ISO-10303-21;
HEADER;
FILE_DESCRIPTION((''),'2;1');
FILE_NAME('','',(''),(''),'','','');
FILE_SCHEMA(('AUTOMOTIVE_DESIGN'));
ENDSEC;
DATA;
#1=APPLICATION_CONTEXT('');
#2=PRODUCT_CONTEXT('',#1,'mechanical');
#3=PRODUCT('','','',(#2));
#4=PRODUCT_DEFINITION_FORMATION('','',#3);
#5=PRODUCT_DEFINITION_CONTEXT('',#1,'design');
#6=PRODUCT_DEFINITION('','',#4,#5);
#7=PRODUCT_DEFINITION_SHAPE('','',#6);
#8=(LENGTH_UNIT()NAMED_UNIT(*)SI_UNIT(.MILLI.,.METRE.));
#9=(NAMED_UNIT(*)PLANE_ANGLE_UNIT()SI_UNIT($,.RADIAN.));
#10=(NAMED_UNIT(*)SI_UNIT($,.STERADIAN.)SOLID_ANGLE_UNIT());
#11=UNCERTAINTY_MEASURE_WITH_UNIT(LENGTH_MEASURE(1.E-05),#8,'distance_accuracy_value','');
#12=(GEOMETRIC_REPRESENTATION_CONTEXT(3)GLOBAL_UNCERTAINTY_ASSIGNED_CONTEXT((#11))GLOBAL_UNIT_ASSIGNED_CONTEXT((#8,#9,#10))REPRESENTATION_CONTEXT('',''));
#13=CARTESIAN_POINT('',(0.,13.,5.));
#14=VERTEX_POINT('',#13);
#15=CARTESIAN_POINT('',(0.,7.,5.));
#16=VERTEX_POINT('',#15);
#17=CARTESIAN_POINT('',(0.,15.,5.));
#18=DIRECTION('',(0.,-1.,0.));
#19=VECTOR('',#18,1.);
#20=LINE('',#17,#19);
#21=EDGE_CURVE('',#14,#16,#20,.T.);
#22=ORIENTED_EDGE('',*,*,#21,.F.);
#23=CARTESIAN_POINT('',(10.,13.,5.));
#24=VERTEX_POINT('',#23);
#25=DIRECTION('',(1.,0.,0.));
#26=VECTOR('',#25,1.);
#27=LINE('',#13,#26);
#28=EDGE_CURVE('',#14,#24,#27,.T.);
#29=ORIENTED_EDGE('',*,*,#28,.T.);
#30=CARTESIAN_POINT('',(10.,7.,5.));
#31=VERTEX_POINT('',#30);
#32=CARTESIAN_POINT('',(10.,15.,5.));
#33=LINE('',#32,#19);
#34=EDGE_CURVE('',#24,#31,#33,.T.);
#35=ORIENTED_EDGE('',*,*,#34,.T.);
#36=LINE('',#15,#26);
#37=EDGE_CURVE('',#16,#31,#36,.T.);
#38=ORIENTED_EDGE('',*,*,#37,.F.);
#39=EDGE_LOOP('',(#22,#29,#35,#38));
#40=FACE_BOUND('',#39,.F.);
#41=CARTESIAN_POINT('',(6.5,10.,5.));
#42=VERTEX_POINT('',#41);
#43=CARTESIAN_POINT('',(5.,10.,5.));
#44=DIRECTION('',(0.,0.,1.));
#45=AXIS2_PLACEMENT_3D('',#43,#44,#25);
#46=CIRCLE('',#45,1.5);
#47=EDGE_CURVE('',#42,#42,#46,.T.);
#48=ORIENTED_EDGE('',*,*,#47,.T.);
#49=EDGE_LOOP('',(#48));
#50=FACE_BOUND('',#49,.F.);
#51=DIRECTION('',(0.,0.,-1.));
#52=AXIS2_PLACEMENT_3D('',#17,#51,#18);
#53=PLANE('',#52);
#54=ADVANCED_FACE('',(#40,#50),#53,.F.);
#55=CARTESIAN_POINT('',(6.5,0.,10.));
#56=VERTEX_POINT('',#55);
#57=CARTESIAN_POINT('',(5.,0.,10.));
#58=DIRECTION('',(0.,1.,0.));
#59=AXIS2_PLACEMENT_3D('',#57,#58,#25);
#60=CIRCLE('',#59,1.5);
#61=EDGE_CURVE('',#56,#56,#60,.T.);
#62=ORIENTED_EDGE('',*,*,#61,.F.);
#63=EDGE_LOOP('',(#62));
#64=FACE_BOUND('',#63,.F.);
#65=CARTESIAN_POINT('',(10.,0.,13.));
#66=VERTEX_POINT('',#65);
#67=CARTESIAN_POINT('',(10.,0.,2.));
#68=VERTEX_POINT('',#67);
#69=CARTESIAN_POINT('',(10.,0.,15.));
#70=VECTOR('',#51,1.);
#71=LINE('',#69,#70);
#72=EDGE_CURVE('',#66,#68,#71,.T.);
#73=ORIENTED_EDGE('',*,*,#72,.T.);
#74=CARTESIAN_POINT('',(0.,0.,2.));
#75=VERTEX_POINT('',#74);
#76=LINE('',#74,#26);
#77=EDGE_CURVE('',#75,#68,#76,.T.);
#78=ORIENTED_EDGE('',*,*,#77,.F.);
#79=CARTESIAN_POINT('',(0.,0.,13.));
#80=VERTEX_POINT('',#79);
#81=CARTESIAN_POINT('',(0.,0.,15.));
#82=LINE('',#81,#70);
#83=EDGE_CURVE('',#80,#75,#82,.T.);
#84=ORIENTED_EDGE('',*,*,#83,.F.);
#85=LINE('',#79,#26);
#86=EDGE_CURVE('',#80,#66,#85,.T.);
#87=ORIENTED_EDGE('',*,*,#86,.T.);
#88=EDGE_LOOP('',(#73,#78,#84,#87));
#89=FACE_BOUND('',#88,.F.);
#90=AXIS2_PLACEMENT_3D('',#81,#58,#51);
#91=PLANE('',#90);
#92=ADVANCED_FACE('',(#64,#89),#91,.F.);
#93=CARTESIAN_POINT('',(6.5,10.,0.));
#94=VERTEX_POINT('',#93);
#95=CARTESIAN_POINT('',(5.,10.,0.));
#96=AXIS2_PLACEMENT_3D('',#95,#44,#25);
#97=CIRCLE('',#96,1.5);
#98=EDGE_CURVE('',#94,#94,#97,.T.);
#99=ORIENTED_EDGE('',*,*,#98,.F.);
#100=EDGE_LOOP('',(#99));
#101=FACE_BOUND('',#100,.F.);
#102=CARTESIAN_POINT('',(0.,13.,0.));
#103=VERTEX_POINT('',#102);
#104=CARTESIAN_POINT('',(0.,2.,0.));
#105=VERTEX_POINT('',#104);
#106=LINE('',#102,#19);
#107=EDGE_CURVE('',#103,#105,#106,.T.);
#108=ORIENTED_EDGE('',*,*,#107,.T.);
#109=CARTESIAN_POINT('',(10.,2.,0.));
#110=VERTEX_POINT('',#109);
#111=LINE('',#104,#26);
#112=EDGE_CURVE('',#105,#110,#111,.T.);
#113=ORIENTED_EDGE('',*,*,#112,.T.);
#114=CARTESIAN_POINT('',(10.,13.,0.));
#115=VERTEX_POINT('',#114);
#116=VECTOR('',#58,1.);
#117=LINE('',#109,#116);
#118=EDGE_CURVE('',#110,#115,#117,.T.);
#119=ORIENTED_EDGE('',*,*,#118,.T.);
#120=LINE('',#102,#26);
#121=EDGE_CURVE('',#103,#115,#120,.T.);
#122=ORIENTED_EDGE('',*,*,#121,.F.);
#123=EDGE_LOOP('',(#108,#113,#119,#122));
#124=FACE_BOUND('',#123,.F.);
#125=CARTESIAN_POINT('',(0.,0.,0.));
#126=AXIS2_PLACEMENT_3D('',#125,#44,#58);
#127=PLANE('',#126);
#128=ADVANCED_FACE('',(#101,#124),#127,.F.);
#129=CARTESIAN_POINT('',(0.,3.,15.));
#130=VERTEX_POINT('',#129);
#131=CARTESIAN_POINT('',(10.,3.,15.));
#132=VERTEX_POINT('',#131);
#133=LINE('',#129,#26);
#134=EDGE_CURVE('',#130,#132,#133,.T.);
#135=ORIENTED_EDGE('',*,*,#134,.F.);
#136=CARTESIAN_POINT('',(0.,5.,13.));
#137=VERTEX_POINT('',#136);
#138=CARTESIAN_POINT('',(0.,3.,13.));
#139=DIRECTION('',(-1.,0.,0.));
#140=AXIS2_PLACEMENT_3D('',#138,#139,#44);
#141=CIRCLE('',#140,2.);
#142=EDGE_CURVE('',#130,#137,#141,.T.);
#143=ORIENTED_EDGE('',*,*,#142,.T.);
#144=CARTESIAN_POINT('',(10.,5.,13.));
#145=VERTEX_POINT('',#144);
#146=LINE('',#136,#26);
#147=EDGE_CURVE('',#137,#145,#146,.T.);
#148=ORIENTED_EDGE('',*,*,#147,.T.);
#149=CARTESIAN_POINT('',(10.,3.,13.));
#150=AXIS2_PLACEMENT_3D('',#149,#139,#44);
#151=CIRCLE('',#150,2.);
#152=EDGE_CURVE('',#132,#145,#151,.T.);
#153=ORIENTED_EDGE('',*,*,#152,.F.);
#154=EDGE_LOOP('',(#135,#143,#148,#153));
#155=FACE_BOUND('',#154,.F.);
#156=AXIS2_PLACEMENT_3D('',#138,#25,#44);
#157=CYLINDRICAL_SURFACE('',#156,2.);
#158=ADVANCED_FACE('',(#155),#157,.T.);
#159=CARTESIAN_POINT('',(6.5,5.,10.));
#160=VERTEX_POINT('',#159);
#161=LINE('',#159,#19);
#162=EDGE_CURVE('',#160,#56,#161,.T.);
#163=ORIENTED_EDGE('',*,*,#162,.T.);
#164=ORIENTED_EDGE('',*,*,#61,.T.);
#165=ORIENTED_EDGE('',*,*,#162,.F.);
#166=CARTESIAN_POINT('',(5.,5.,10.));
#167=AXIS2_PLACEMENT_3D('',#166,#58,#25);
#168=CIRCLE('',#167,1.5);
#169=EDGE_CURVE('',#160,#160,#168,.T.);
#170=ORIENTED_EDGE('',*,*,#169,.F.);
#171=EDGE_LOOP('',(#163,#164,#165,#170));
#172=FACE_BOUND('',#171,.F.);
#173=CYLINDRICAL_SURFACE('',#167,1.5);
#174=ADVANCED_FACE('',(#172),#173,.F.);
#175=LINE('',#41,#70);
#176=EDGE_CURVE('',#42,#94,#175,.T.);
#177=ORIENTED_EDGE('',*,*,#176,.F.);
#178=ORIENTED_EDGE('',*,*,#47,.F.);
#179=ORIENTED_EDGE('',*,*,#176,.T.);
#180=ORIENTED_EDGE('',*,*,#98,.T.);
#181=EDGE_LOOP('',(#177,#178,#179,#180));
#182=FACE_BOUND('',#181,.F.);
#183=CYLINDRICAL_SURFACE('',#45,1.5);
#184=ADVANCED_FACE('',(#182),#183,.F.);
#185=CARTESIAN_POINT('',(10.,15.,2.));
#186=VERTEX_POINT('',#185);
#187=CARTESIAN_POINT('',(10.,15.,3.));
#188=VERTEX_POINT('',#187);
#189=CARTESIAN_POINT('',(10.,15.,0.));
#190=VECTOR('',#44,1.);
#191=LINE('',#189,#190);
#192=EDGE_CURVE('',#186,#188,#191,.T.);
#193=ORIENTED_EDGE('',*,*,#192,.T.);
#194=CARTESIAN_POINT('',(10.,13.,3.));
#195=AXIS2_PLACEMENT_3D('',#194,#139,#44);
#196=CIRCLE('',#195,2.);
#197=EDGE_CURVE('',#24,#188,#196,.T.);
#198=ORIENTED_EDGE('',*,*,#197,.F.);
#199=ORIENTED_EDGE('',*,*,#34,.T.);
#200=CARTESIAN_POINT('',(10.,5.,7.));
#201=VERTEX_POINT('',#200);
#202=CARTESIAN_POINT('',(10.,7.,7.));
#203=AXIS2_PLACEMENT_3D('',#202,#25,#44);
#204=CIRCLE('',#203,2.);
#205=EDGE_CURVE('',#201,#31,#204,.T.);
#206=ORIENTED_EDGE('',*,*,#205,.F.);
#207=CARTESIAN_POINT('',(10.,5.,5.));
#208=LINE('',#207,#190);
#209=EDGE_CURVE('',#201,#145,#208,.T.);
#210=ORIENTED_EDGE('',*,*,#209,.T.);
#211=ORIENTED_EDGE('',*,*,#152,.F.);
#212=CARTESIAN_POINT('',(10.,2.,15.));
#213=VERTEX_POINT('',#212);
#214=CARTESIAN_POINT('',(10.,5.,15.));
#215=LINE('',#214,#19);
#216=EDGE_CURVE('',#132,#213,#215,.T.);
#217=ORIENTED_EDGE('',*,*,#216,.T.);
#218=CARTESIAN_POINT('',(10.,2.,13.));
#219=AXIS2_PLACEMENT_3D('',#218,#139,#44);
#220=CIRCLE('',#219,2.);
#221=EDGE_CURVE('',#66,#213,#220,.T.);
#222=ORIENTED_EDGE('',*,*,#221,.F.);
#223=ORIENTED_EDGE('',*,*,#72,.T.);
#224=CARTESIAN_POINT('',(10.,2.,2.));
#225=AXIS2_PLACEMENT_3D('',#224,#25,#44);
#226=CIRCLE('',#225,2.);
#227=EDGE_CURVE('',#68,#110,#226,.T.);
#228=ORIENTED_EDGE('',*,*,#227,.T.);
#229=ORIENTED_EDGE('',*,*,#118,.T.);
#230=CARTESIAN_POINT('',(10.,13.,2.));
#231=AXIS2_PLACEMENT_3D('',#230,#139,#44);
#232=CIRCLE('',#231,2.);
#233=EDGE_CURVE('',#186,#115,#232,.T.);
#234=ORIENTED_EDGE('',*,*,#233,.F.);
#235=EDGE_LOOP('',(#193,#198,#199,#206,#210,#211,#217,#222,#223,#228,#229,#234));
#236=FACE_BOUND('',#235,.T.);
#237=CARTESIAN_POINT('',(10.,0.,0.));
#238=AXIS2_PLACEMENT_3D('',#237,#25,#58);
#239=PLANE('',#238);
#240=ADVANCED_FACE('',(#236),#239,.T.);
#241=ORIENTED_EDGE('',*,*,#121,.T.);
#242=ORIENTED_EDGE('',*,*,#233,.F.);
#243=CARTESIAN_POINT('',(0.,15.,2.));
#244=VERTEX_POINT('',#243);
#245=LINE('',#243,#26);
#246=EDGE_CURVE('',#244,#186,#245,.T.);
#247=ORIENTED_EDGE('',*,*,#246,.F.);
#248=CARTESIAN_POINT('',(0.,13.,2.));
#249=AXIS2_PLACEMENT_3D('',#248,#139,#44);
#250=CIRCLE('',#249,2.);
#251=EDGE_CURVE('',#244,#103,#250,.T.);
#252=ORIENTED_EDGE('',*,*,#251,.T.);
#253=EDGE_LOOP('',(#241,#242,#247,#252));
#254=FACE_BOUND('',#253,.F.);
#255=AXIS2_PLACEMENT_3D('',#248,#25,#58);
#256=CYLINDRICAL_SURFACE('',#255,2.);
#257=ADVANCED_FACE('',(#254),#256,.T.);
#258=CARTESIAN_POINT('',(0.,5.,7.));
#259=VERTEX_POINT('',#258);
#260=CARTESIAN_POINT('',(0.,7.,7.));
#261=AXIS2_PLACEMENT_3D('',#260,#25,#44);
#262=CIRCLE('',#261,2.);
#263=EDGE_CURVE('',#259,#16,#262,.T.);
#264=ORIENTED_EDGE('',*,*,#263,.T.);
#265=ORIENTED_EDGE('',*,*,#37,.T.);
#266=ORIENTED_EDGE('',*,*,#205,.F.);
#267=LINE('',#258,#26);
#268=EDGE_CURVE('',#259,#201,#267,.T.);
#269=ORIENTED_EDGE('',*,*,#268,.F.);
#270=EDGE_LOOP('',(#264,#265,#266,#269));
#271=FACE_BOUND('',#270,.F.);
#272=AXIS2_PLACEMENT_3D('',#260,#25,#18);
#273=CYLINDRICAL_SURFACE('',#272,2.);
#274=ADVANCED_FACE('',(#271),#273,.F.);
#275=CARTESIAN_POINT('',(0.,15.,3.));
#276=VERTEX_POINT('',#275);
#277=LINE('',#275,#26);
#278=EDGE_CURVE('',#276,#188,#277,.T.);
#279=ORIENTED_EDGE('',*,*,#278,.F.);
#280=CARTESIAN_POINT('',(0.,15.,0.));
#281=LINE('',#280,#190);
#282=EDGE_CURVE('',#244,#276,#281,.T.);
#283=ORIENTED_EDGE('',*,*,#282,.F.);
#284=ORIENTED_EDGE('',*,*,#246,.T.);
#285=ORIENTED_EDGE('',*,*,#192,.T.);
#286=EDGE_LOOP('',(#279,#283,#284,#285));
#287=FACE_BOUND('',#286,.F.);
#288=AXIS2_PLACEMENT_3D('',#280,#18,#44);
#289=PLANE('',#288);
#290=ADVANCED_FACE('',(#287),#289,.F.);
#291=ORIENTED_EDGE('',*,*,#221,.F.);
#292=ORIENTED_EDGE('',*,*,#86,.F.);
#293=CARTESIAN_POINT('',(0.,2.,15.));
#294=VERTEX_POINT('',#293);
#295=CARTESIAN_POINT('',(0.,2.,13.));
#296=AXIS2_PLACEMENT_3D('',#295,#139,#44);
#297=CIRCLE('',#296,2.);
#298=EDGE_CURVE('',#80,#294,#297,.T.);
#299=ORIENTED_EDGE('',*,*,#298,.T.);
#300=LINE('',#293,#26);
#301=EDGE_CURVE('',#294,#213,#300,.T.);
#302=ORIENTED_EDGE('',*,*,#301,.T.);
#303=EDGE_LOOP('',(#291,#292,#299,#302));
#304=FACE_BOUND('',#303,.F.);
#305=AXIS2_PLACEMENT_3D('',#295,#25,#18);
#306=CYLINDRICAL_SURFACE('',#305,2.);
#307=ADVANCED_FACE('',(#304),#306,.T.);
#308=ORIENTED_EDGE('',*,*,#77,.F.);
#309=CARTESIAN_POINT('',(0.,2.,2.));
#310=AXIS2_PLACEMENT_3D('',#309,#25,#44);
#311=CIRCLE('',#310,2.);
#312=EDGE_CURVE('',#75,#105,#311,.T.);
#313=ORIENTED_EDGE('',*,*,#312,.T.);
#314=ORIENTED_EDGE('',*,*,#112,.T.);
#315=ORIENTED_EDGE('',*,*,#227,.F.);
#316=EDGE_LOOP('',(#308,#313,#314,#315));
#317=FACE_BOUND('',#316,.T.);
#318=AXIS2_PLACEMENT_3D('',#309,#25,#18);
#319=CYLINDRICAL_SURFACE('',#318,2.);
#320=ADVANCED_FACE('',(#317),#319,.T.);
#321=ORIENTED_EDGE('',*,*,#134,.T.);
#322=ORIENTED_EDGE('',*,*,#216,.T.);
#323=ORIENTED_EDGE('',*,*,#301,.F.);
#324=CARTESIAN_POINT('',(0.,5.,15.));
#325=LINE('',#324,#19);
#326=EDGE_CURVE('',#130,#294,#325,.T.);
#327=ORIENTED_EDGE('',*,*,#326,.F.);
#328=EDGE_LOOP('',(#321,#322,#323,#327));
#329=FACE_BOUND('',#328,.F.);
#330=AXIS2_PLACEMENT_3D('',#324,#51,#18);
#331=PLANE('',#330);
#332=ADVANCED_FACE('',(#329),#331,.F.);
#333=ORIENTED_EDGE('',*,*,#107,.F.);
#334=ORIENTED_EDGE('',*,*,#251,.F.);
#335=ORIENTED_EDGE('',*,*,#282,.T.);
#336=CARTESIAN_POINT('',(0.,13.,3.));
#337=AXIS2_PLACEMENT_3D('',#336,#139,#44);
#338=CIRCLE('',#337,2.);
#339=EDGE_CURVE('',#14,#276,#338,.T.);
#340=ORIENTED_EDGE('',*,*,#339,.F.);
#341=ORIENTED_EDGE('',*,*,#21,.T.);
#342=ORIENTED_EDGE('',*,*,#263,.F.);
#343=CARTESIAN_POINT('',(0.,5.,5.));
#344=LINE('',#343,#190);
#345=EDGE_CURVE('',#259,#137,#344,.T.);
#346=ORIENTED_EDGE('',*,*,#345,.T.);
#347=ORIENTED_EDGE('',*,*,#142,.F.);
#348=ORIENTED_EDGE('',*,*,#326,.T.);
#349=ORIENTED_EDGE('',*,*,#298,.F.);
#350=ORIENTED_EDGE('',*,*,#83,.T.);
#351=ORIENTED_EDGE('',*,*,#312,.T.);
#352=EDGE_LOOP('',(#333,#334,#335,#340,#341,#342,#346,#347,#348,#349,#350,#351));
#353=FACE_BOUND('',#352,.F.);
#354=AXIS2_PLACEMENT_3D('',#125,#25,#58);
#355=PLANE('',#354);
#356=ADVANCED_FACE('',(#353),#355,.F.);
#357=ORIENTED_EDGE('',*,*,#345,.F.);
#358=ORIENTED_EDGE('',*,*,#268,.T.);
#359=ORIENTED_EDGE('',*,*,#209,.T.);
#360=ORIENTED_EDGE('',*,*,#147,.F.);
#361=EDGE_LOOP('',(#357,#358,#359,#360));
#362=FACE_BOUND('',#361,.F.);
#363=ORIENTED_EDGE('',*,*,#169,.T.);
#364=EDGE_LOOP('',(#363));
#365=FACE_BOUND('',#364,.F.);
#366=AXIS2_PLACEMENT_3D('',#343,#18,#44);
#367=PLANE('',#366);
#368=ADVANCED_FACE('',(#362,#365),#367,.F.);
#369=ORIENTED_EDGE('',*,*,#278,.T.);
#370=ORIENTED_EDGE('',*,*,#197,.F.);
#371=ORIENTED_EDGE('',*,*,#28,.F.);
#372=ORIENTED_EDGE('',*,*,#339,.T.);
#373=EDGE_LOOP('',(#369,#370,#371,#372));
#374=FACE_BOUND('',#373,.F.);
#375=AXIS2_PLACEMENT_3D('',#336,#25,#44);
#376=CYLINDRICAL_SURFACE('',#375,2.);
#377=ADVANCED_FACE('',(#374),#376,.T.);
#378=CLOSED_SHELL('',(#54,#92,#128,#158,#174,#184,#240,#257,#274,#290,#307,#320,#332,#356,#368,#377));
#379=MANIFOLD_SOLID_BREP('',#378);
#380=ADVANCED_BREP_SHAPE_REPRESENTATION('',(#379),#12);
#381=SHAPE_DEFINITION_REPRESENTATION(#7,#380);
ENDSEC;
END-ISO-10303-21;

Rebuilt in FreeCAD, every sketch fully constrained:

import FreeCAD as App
import Part
import Sketcher

V = App.Vector


def edges_at(feature, points):
    """Names of the edges that pass closest to the given points."""
    edges = feature.Shape.Edges
    near = lambda p: min(range(len(edges)), key=lambda i: edges[i].distToShape(Part.Vertex(*p))[0])
    return sorted({f"Edge{near(p) + 1}" for p in points})


def add_polygon(sketch, points):
    """Adds a closed chain of lines whose ends are joined by coincident constraints."""
    first, n = sketch.GeometryCount, len(points)
    for a, b in zip(points, points[1:] + points[:1]):
        sketch.addGeometry(Part.LineSegment(App.Vector(*a, 0), App.Vector(*b, 0)), False)
    for i in range(n):
        sketch.addConstraint(Sketcher.Constraint("Coincident", first + i, 2, first + (i + 1) % n, 1))

doc = App.newDocument("Part")
body = doc.addObject("PartDesign::Body", "Body")

# Sketch on YZ plane
sketch1 = doc.addObject("Sketcher::SketchObject", "Sketch")
body.addObject(sketch1)
sketch1.AttachmentSupport = (doc.YZ_Plane, [""])
sketch1.MapMode = "FlatFace"
add_polygon(sketch1, [(0, 15), (0, 0), (15, 0), (15, 5), (5, 5), (5, 15)])  # lines 0-5
sketch1.addConstraint(Sketcher.Constraint("Vertical", 0))
sketch1.addConstraint(Sketcher.Constraint("Horizontal", 1))
sketch1.addConstraint(Sketcher.Constraint("Vertical", 2))
sketch1.addConstraint(Sketcher.Constraint("Horizontal", 3))
sketch1.addConstraint(Sketcher.Constraint("Vertical", 4))
sketch1.addConstraint(Sketcher.Constraint("Horizontal", 5))
sketch1.addConstraint(Sketcher.Constraint("Coincident", 0, 2, -1, 1))
sketch1.addConstraint(Sketcher.Constraint("Equal", 1, 0))
sketch1.addConstraint(Sketcher.Constraint("Equal", 5, 2))
sketch1.addConstraint(Sketcher.Constraint("DistanceX", 1, 1, 1, 2, 15.0))
sketch1.addConstraint(Sketcher.Constraint("DistanceX", 3, 2, 3, 1, 10.0))
pad1 = doc.addObject("PartDesign::Pad", "Pad")
body.addObject(pad1)
pad1.Profile = sketch1
pad1.Length = 10
doc.recompute()

fillet = doc.addObject("PartDesign::Fillet", "Fillet")
body.addObject(fillet)
fillet.Base = (pad1, edges_at(pad1, [
    (5, 5, 5),
    (5, 0, 0),
    (5, 5, 15),
    (5, 0, 15),
    (5, 15, 5),
    (5, 15, 0),
]))
fillet.Radius = 2

# Sketch on XZ plane
sketch2 = doc.addObject("Sketcher::SketchObject", "Sketch001")
body.addObject(sketch2)
sketch2.AttachmentSupport = (doc.XZ_Plane, [""])
sketch2.MapMode = "FlatFace"
sketch2.AttachmentOffset = App.Placement(V(0, 0, -5), App.Rotation())
sketch2.addGeometry(Part.Circle(V(5, 10, 0), V(0, 0, 1), 1.5), False)
sketch2.addConstraint(Sketcher.Constraint("Diameter", 0, 3.0))
sketch2.addConstraint(Sketcher.Constraint("DistanceX", -1, 1, 0, 3, 5.0))
sketch2.addConstraint(Sketcher.Constraint("DistanceY", -1, 1, 0, 3, 10.0))
pocket1 = doc.addObject("PartDesign::Pocket", "Pocket")
body.addObject(pocket1)
pocket1.Profile = sketch2
pocket1.Type = "ThroughAll"
pocket1.Reversed = True

# Sketch on XY plane
sketch3 = doc.addObject("Sketcher::SketchObject", "Sketch002")
body.addObject(sketch3)
sketch3.AttachmentSupport = (doc.XY_Plane, [""])
sketch3.MapMode = "FlatFace"
sketch3.AttachmentOffset = App.Placement(V(0, 0, 5), App.Rotation())
sketch3.addGeometry(Part.Circle(V(5, 10, 0), V(0, 0, 1), 1.5), False)
sketch3.addConstraint(Sketcher.Constraint("Diameter", 0, 3.0))
sketch3.addConstraint(Sketcher.Constraint("DistanceX", -1, 1, 0, 3, 5.0))
sketch3.addConstraint(Sketcher.Constraint("DistanceY", -1, 1, 0, 3, 10.0))
pocket2 = doc.addObject("PartDesign::Pocket", "Pocket001")
body.addObject(pocket2)
pocket2.Profile = sketch3
pocket2.Type = "ThroughAll"

doc.recompute()
